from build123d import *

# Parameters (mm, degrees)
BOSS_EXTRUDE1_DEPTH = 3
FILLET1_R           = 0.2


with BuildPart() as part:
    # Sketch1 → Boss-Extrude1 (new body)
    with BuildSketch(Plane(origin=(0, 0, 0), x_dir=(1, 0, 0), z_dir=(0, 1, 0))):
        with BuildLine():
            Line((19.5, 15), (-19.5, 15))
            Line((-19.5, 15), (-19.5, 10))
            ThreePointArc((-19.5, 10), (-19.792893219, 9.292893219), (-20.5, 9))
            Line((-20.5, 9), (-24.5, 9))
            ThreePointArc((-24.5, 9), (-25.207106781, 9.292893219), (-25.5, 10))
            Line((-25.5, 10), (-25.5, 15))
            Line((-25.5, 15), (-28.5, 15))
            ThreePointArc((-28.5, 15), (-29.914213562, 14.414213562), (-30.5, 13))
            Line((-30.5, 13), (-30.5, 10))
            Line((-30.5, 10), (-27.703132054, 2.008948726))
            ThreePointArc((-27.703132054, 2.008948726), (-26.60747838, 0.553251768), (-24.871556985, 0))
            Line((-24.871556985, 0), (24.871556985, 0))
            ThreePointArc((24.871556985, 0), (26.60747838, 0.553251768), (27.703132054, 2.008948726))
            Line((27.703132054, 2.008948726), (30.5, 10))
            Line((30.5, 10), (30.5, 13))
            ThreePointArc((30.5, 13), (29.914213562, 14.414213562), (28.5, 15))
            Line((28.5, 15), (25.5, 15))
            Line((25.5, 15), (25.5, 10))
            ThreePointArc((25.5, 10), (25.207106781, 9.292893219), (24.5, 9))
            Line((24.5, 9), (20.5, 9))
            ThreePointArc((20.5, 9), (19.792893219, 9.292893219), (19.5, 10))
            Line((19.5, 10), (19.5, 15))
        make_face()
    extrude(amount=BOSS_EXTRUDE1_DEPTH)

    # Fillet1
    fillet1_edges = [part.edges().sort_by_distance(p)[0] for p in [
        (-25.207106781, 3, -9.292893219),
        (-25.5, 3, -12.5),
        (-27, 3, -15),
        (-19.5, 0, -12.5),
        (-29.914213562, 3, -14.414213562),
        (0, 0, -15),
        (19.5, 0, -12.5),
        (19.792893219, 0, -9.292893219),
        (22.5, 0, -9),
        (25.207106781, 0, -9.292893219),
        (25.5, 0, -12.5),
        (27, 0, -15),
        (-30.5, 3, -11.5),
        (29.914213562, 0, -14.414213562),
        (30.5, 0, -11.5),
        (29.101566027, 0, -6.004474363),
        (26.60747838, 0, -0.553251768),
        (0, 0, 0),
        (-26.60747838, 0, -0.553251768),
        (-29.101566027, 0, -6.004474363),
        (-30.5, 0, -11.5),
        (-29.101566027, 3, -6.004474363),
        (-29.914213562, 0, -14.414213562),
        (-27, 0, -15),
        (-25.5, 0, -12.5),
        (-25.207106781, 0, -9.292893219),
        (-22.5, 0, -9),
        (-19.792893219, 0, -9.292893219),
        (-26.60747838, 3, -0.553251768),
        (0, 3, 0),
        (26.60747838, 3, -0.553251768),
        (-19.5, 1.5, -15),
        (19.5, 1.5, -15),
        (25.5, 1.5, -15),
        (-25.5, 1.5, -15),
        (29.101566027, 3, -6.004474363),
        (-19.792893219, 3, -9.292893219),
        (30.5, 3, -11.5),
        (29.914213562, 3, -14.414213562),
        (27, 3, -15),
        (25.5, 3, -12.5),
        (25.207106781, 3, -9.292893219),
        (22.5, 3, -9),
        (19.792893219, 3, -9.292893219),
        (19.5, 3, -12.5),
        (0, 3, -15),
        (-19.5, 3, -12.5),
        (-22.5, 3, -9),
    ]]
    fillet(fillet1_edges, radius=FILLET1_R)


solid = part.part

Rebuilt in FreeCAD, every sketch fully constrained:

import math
import FreeCAD as App
import Part
import Sketcher

V = App.Vector
Q = App.Units.Quantity

doc = App.newDocument("Part")
body = doc.addObject("PartDesign::Body", "Body")

# Sketch on XZ plane
sketch1 = doc.addObject("Sketcher::SketchObject", "Sketch")
body.addObject(sketch1)
sketch1.AttachmentSupport = (doc.XZ_Plane, [""])
sketch1.MapMode = "FlatFace"
sketch1.addGeometry(Part.LineSegment(V(19.5, -15, 0), V(-19.5, -15, 0)), False)
sketch1.addGeometry(Part.LineSegment(V(-19.5, -15, 0), V(-19.5, -10, 0)), False)
sketch1.addGeometry(Part.ArcOfCircle(Part.Circle(V(-20.5, -10, 0), V(0, 0, 1), 1), math.radians(0), math.radians(90)), False)
sketch1.addGeometry(Part.LineSegment(V(-20.5, -9, 0), V(-24.5, -9, 0)), False)
sketch1.addGeometry(Part.ArcOfCircle(Part.Circle(V(-24.5, -10, 0), V(0, 0, 1), 1), math.radians(90), math.radians(180)), False)
sketch1.addGeometry(Part.LineSegment(V(-25.5, -10, 0), V(-25.5, -15, 0)), False)
sketch1.addGeometry(Part.LineSegment(V(-25.5, -15, 0), V(-28.5, -15, 0)), False)
sketch1.addGeometry(Part.ArcOfCircle(Part.Circle(V(-28.5, -13, 0), V(0, 0, 1), 2), math.radians(-180), math.radians(-90)), False)
sketch1.addGeometry(Part.LineSegment(V(-30.5, -13, 0), V(-30.5, -10, 0)), False)
sketch1.addGeometry(Part.LineSegment(V(-30.5, -10, 0), V(-27.7, -2, 0)), False)
sketch1.addGeometry(Part.ArcOfCircle(Part.Circle(V(-24.9, -3, 0), V(0, 0, 1), 3), math.radians(90), math.radians(161)), False)
sketch1.addGeometry(Part.LineSegment(V(-24.9, 0, 0), V(24.9, 0, 0)), False)
sketch1.addGeometry(Part.ArcOfCircle(Part.Circle(V(24.9, -3, 0), V(0, 0, 1), 3), math.radians(19), math.radians(90)), False)
sketch1.addGeometry(Part.LineSegment(V(27.7, -2, 0), V(30.5, -10, 0)), False)
sketch1.addGeometry(Part.LineSegment(V(30.5, -10, 0), V(30.5, -13, 0)), False)
sketch1.addGeometry(Part.ArcOfCircle(Part.Circle(V(28.5, -13, 0), V(0, 0, 1), 2), math.radians(-90), math.radians(0)), False)
sketch1.addGeometry(Part.LineSegment(V(28.5, -15, 0), V(25.5, -15, 0)), False)
sketch1.addGeometry(Part.LineSegment(V(25.5, -15, 0), V(25.5, -10, 0)), False)
sketch1.addGeometry(Part.ArcOfCircle(Part.Circle(V(24.5, -10, 0), V(0, 0, 1), 1), math.radians(0), math.radians(90)), False)
sketch1.addGeometry(Part.LineSegment(V(24.5, -9, 0), V(20.5, -9, 0)), False)
sketch1.addGeometry(Part.ArcOfCircle(Part.Circle(V(20.5, -10, 0), V(0, 0, 1), 1), math.radians(90), math.radians(180)), False)
sketch1.addGeometry(Part.LineSegment(V(19.5, -10, 0), V(19.5, -15, 0)), False)
sketch1.addConstraint(Sketcher.Constraint("Coincident", 0, 2, 1, 1))
sketch1.addConstraint(Sketcher.Constraint("Tangent", 1, 2, 2, 1))
sketch1.addConstraint(Sketcher.Constraint("Tangent", 2, 2, 3, 1))
sketch1.addConstraint(Sketcher.Constraint("Tangent", 3, 2, 4, 1))
sketch1.addConstraint(Sketcher.Constraint("Tangent", 4, 2, 5, 1))
sketch1.addConstraint(Sketcher.Constraint("Coincident", 5, 2, 6, 1))
sketch1.addConstraint(Sketcher.Constraint("Tangent", 6, 2, 7, 2))
sketch1.addConstraint(Sketcher.Constraint("Tangent", 7, 1, 8, 1))
sketch1.addConstraint(Sketcher.Constraint("Coincident", 8, 2, 9, 1))
sketch1.addConstraint(Sketcher.Constraint("Tangent", 9, 2, 10, 2))
sketch1.addConstraint(Sketcher.Constraint("Tangent", 10, 1, 11, 1))
sketch1.addConstraint(Sketcher.Constraint("Tangent", 11, 2, 12, 2))
sketch1.addConstraint(Sketcher.Constraint("Tangent", 12, 1, 13, 1))
sketch1.addConstraint(Sketcher.Constraint("Coincident", 13, 2, 14, 1))
sketch1.addConstraint(Sketcher.Constraint("Tangent", 14, 2, 15, 2))
sketch1.addConstraint(Sketcher.Constraint("Tangent", 15, 1, 16, 1))
sketch1.addConstraint(Sketcher.Constraint("Coincident", 16, 2, 17, 1))
sketch1.addConstraint(Sketcher.Constraint("Tangent", 17, 2, 18, 1))
sketch1.addConstraint(Sketcher.Constraint("Tangent", 18, 2, 19, 1))
sketch1.addConstraint(Sketcher.Constraint("Tangent", 19, 2, 20, 1))
sketch1.addConstraint(Sketcher.Constraint("Tangent", 20, 2, 21, 1))
sketch1.addConstraint(Sketcher.Constraint("Coincident", 21, 2, 0, 1))
sketch1.addConstraint(Sketcher.Constraint("Horizontal", 0))
sketch1.addConstraint(Sketcher.Constraint("Vertical", 1))
sketch1.addConstraint(Sketcher.Constraint("Horizontal", 3))
sketch1.addConstraint(Sketcher.Constraint("Vertical", 5))
sketch1.addConstraint(Sketcher.Constraint("Horizontal", 6))
sketch1.addConstraint(Sketcher.Constraint("Vertical", 8))
sketch1.addConstraint(Sketcher.Constraint("Horizontal", 11))
sketch1.addConstraint(Sketcher.Constraint("Vertical", 14))
sketch1.addConstraint(Sketcher.Constraint("Horizontal", 16))
sketch1.addConstraint(Sketcher.Constraint("Vertical", 17))
sketch1.addConstraint(Sketcher.Constraint("Horizontal", 19))
sketch1.addConstraint(Sketcher.Constraint("Vertical", 21))
sketch1.addConstraint(Sketcher.Constraint("Equal", 2, 4))
sketch1.addConstraint(Sketcher.Constraint("Equal", 10, 12))
sketch1.addConstraint(Sketcher.Constraint("Equal", 7, 15))
sketch1.addConstraint(Sketcher.Constraint("Equal", 4, 18))
sketch1.addConstraint(Sketcher.Constraint("Equal", 18, 20))
sketch1.addConstraint(Sketcher.Constraint("Symmetric", 10, 1, 11, 2, -1, 1))
sketch1.addConstraint(Sketcher.Constraint("Symmetric", 7, 3, 15, 3, -2))
sketch1.addConstraint(Sketcher.Constraint("Symmetric", 4, 3, 18, 3, -2))
sketch1.addConstraint(Sketcher.Constraint("Horizontal", 0, 2, 5, 2))
sketch1.addConstraint(Sketcher.Constraint("Horizontal", 4, 2, 8, 2))
sketch1.addConstraint(Sketcher.Constraint("Horizontal", 9, 2, 12, 1))
sketch1.addConstraint(Sketcher.Constraint("Equal", 3, 19))
sketch1.addConstraint(Sketcher.Constraint("Equal", 16, 8))
sketch1.addConstraint(Sketcher.Constraint("Radius", 2, Q("1 mm")))
sketch1.addConstraint(Sketcher.Constraint("Radius", 7, Q("2 mm")))
sketch1.addConstraint(Sketcher.Constraint("Radius", 10, Q("3 mm")))
sketch1.addConstraint(Sketcher.Constraint("DistanceX", 0, 2, 0, 1, Q("39 mm")))
sketch1.addConstraint(Sketcher.Constraint("DistanceX", 3, 2, 3, 1, Q("4 mm")))
sketch1.addConstraint(Sketcher.Constraint("DistanceX", 6, 2, 6, 1, Q("3 mm")))
sketch1.addConstraint(Sketcher.Constraint("DistanceY", 2, 3, -1, 1, Q("10 mm")))
sketch1.addConstraint(Sketcher.Constraint("DistanceX", 11, 1, 11, 2, Q("49.743114 mm")))
pad1 = doc.addObject("PartDesign::Pad", "Pad")
body.addObject(pad1)
pad1.Profile = sketch1
pad1.Length = 3
pad1.Reversed = True
doc.recompute()

fillet = doc.addObject("PartDesign::Fillet", "Fillet")
body.addObject(fillet)
fillet.Base = (pad1, ["Edge1"])
fillet.UseAllEdges = True
fillet.Radius = 0.2

doc.recompute()
